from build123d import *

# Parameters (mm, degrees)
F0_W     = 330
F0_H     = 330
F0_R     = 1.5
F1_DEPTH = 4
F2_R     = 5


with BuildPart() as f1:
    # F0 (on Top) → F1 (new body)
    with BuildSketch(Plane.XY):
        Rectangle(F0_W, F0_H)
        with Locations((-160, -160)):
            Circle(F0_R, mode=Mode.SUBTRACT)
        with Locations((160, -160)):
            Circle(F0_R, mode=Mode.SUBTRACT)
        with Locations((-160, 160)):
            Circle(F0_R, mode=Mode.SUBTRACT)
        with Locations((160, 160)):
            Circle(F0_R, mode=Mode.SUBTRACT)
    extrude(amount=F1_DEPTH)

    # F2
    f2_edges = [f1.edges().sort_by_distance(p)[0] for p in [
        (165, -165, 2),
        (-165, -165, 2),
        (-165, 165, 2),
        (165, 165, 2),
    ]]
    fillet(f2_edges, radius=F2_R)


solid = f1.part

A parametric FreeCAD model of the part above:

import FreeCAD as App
import Part
import Sketcher

V = App.Vector


def edges_at(feature, points):
    """Names of the edges that pass closest to the given points."""
    edges = feature.Shape.Edges
    near = lambda p: min(range(len(edges)), key=lambda i: edges[i].distToShape(Part.Vertex(*p))[0])
    return sorted({f"Edge{near(p) + 1}" for p in points})


def add_polygon(sketch, points):
    """Adds a closed chain of lines whose ends are joined by coincident constraints."""
    first, n = sketch.GeometryCount, len(points)
    for a, b in zip(points, points[1:] + points[:1]):
        sketch.addGeometry(Part.LineSegment(App.Vector(*a, 0), App.Vector(*b, 0)), False)
    for i in range(n):
        sketch.addConstraint(Sketcher.Constraint("Coincident", first + i, 2, first + (i + 1) % n, 1))

doc = App.newDocument("Part")
body = doc.addObject("PartDesign::Body", "Body")

sketch1 = body.newObject("Sketcher::SketchObject", "Sketch")
sketch1.AttachmentSupport = (doc.getObject("XY_Plane"), [""])
sketch1.MapMode = "FlatFace"
add_polygon(sketch1, [(-165, 165), (-165, -165), (165, -165), (165, 165)])
sketch1.addGeometry(Part.Circle(V(-160, -160, 0), V(0, 0, 1), 1.5), False)
sketch1.addGeometry(Part.Circle(V(160, -160, 0), V(0, 0, 1), 1.5), False)
sketch1.addGeometry(Part.Circle(V(-160, 160, 0), V(0, 0, 1), 1.5), False)
sketch1.addGeometry(Part.Circle(V(160, 160, 0), V(0, 0, 1), 1.5), False)
sketch1.addConstraint([
    Sketcher.Constraint("Vertical", 0),
    Sketcher.Constraint("Horizontal", 1),
    Sketcher.Constraint("Vertical", 2),
    Sketcher.Constraint("Horizontal", 3),
    Sketcher.Constraint("Equal", 4, 5),
    Sketcher.Constraint("Equal", 5, 6),
    Sketcher.Constraint("Equal", 6, 7),
    Sketcher.Constraint("Symmetric", 5, 3, 6, 3, -1, 1),
    Sketcher.Constraint("Symmetric", 4, 3, 7, 3, -1, 1),
    Sketcher.Constraint("Symmetric", 0, 2, 2, 2, -1, 1),
    Sketcher.Constraint("Symmetric", 4, 3, 5, 3, -2),
    Sketcher.Constraint("Equal", 3, 0),
    Sketcher.Constraint("Diameter", 4, 3.0),
    Sketcher.Constraint("DistanceX", 1, 1, 1, 2, 330.0),
    Sketcher.Constraint("DistanceX", 4, 3, -1, 1, 160.0),
    Sketcher.Constraint("DistanceY", 4, 3, -1, 1, 160.0),
])
pad1 = body.newObject("PartDesign::Pad", "Pad")
pad1.Profile = sketch1
pad1.Length = 4
doc.recompute()

fillet = body.newObject("PartDesign::Fillet", "Fillet")
fillet.Base = (pad1, edges_at(pad1, [
    (165, -165, 2),
    (-165, -165, 2),
    (-165, 165, 2),
    (165, 165, 2),
]))
fillet.Radius = 5

doc.recompute()
